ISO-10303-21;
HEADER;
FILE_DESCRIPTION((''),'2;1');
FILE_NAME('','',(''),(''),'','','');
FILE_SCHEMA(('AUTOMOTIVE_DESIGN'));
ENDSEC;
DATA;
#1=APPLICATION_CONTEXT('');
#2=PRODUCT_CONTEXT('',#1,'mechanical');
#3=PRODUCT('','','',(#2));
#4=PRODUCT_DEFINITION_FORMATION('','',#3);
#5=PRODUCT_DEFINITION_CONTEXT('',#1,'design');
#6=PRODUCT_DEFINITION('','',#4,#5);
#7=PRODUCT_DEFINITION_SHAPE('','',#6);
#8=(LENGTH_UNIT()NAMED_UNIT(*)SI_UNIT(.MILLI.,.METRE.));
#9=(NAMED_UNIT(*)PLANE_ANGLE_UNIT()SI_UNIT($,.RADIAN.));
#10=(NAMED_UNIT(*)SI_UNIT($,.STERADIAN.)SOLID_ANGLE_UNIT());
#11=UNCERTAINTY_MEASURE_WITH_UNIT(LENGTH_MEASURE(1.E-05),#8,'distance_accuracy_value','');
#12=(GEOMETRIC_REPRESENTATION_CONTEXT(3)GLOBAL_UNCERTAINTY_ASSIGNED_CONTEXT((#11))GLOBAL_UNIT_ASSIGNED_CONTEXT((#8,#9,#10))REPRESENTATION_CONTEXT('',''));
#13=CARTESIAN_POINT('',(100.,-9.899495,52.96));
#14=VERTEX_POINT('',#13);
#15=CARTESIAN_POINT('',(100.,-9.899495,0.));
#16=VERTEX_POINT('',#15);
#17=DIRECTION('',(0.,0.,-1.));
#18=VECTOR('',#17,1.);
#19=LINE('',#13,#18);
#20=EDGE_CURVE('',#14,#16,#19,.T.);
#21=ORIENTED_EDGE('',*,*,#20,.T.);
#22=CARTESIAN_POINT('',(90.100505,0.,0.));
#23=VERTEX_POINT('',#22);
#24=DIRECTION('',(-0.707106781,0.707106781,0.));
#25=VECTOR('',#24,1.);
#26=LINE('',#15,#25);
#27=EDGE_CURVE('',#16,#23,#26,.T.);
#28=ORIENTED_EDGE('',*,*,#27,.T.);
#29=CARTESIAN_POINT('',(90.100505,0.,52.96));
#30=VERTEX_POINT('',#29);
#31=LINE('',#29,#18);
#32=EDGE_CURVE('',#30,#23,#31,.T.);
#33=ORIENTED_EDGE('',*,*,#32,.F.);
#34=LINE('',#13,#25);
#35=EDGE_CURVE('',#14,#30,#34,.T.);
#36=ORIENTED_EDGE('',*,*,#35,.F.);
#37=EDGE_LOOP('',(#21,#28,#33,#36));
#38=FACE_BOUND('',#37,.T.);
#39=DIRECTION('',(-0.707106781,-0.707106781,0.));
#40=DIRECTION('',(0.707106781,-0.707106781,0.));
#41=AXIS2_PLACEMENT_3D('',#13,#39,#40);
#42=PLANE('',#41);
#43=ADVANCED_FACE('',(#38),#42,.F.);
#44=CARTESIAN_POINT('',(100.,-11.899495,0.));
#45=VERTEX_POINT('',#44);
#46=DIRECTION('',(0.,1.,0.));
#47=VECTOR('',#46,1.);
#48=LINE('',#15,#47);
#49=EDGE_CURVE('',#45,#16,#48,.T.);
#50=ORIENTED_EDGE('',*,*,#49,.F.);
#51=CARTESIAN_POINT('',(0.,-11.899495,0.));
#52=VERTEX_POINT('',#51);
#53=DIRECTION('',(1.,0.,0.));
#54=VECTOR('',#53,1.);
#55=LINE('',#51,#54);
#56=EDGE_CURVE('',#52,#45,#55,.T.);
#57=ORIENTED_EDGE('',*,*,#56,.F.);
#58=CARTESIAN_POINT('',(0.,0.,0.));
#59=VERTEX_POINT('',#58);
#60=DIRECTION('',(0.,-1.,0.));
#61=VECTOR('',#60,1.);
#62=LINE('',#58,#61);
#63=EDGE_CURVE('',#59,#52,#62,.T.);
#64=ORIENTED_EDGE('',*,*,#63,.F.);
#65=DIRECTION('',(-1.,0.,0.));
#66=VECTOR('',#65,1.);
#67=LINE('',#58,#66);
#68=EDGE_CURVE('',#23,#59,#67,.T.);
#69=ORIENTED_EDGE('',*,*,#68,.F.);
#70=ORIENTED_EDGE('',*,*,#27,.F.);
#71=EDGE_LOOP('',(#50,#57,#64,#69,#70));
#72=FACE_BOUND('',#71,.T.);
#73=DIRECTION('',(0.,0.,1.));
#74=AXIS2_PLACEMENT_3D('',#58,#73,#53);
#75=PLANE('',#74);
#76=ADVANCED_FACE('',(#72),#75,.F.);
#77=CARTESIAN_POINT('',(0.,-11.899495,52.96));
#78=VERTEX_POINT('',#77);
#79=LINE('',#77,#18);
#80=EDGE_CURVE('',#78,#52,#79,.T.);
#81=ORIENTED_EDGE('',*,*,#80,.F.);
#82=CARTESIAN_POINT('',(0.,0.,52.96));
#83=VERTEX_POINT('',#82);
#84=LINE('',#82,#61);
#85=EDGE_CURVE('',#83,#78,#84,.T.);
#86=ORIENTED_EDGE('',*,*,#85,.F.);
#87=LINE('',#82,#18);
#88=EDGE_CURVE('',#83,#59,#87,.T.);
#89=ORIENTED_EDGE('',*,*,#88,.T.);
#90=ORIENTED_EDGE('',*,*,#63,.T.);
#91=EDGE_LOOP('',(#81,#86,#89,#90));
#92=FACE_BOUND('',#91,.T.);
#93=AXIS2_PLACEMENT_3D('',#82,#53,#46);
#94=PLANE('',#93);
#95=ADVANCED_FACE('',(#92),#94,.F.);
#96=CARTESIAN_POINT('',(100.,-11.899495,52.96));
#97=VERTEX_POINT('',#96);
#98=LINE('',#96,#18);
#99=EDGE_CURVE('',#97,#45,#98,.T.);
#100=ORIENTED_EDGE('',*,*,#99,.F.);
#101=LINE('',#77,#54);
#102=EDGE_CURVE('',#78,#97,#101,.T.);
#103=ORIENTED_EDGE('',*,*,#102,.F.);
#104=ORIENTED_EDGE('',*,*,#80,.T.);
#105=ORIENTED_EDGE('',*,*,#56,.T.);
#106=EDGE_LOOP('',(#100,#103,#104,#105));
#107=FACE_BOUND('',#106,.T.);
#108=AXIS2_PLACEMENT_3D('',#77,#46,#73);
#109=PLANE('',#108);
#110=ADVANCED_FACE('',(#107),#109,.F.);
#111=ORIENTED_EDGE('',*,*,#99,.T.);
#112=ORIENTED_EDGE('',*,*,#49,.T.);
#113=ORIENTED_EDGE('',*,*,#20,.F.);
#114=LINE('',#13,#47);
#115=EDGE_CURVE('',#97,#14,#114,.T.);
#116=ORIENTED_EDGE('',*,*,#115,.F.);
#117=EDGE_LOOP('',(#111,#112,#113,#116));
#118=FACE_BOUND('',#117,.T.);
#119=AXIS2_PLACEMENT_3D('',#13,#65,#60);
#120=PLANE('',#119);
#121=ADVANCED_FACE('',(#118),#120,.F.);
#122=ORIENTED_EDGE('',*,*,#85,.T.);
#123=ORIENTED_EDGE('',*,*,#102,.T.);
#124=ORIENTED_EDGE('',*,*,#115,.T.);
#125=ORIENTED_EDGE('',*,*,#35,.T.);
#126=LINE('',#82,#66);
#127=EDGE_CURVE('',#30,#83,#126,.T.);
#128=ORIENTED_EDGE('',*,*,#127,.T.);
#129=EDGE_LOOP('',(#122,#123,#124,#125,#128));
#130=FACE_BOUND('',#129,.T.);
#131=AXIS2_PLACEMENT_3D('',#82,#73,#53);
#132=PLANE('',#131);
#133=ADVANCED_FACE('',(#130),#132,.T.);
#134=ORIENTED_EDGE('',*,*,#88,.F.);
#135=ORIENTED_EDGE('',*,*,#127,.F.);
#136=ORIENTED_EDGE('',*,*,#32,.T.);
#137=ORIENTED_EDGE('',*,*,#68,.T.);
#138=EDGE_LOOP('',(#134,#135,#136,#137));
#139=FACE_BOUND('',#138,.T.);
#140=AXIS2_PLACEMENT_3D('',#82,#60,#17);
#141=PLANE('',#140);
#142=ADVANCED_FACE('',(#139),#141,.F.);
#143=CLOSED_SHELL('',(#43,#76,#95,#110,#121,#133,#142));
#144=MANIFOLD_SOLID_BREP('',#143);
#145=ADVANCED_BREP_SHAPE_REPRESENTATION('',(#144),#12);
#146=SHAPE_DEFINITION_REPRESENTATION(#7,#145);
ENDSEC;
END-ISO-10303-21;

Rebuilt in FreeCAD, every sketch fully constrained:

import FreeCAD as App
import Part
import Sketcher
Q = App.Units.Quantity

doc = App.newDocument("Part")
params = doc.addObject("Spreadsheet::Sheet", "Params")
for row, (alias, value) in enumerate([
    ("sketch1_width", "100 mm"),
    ("sketch1_height", "2 mm"),
    ("sketch1_length", "14 mm"),
    ("pad1_length", "52.96 mm"),
], start=1):
    params.set(f"A{row}", alias)
    params.set(f"B{row}", "=" + value)
    params.setAlias(f"B{row}", alias)

body = doc.addObject("PartDesign::Body", "Body")

sketch1 = body.newObject("Sketcher::SketchObject", "Sketch")
sketch1.AttachmentSupport = (doc.getObject("XY_Plane"), [""])
sketch1.MapMode = "FlatFace"
sketch1.addGeometry(Part.LineSegment(App.Vector(100, -9.899495, 0), App.Vector(90.100505, 0, 0)), False)
sketch1.addGeometry(Part.LineSegment(App.Vector(90.100505, 0, 0), App.Vector(0, 0, 0)), False)
sketch1.addGeometry(Part.LineSegment(App.Vector(0, 0, 0), App.Vector(0, -11.899495, 0)), False)
sketch1.addGeometry(Part.LineSegment(App.Vector(0, -11.899495, 0), App.Vector(100, -11.899495, 0)), False)
sketch1.addGeometry(Part.LineSegment(App.Vector(100, -11.899495, 0), App.Vector(100, -9.899495, 0)), False)
sketch1.addConstraint(Sketcher.Constraint("Coincident", 0, 2, 1, 1))
sketch1.addConstraint(Sketcher.Constraint("Coincident", 1, 2, 2, 1))
sketch1.addConstraint(Sketcher.Constraint("Coincident", 2, 2, 3, 1))
sketch1.addConstraint(Sketcher.Constraint("Coincident", 3, 2, 4, 1))
sketch1.addConstraint(Sketcher.Constraint("Coincident", 4, 2, 0, 1))
sketch1.addConstraint(Sketcher.Constraint("Horizontal", 1))
sketch1.addConstraint(Sketcher.Constraint("Vertical", 2))
sketch1.addConstraint(Sketcher.Constraint("Horizontal", 3))
sketch1.addConstraint(Sketcher.Constraint("Vertical", 4))
sketch1.addConstraint(Sketcher.Constraint("Coincident", 1, 2, -1, 1))
sketch1.addConstraint(Sketcher.Constraint("DistanceX", 3, 1, 3, 2, 100.0))
sketch1.addConstraint(Sketcher.Constraint("DistanceY", 4, 1, 4, 2, 2.0))
sketch1.addConstraint(Sketcher.Constraint("Angle", 0, Q("135 deg")))
sketch1.addConstraint(Sketcher.Constraint("Distance", 0, 14.0))
sketch1.setExpression("Constraints[10]", "Params.sketch1_width")
sketch1.setExpression("Constraints[11]", "Params.sketch1_height")
sketch1.setExpression("Constraints[13]", "Params.sketch1_length")
pad1 = body.newObject("PartDesign::Pad", "Pad")
pad1.Profile = sketch1
pad1.setExpression("Length", "Params.pad1_length")

doc.recompute()
